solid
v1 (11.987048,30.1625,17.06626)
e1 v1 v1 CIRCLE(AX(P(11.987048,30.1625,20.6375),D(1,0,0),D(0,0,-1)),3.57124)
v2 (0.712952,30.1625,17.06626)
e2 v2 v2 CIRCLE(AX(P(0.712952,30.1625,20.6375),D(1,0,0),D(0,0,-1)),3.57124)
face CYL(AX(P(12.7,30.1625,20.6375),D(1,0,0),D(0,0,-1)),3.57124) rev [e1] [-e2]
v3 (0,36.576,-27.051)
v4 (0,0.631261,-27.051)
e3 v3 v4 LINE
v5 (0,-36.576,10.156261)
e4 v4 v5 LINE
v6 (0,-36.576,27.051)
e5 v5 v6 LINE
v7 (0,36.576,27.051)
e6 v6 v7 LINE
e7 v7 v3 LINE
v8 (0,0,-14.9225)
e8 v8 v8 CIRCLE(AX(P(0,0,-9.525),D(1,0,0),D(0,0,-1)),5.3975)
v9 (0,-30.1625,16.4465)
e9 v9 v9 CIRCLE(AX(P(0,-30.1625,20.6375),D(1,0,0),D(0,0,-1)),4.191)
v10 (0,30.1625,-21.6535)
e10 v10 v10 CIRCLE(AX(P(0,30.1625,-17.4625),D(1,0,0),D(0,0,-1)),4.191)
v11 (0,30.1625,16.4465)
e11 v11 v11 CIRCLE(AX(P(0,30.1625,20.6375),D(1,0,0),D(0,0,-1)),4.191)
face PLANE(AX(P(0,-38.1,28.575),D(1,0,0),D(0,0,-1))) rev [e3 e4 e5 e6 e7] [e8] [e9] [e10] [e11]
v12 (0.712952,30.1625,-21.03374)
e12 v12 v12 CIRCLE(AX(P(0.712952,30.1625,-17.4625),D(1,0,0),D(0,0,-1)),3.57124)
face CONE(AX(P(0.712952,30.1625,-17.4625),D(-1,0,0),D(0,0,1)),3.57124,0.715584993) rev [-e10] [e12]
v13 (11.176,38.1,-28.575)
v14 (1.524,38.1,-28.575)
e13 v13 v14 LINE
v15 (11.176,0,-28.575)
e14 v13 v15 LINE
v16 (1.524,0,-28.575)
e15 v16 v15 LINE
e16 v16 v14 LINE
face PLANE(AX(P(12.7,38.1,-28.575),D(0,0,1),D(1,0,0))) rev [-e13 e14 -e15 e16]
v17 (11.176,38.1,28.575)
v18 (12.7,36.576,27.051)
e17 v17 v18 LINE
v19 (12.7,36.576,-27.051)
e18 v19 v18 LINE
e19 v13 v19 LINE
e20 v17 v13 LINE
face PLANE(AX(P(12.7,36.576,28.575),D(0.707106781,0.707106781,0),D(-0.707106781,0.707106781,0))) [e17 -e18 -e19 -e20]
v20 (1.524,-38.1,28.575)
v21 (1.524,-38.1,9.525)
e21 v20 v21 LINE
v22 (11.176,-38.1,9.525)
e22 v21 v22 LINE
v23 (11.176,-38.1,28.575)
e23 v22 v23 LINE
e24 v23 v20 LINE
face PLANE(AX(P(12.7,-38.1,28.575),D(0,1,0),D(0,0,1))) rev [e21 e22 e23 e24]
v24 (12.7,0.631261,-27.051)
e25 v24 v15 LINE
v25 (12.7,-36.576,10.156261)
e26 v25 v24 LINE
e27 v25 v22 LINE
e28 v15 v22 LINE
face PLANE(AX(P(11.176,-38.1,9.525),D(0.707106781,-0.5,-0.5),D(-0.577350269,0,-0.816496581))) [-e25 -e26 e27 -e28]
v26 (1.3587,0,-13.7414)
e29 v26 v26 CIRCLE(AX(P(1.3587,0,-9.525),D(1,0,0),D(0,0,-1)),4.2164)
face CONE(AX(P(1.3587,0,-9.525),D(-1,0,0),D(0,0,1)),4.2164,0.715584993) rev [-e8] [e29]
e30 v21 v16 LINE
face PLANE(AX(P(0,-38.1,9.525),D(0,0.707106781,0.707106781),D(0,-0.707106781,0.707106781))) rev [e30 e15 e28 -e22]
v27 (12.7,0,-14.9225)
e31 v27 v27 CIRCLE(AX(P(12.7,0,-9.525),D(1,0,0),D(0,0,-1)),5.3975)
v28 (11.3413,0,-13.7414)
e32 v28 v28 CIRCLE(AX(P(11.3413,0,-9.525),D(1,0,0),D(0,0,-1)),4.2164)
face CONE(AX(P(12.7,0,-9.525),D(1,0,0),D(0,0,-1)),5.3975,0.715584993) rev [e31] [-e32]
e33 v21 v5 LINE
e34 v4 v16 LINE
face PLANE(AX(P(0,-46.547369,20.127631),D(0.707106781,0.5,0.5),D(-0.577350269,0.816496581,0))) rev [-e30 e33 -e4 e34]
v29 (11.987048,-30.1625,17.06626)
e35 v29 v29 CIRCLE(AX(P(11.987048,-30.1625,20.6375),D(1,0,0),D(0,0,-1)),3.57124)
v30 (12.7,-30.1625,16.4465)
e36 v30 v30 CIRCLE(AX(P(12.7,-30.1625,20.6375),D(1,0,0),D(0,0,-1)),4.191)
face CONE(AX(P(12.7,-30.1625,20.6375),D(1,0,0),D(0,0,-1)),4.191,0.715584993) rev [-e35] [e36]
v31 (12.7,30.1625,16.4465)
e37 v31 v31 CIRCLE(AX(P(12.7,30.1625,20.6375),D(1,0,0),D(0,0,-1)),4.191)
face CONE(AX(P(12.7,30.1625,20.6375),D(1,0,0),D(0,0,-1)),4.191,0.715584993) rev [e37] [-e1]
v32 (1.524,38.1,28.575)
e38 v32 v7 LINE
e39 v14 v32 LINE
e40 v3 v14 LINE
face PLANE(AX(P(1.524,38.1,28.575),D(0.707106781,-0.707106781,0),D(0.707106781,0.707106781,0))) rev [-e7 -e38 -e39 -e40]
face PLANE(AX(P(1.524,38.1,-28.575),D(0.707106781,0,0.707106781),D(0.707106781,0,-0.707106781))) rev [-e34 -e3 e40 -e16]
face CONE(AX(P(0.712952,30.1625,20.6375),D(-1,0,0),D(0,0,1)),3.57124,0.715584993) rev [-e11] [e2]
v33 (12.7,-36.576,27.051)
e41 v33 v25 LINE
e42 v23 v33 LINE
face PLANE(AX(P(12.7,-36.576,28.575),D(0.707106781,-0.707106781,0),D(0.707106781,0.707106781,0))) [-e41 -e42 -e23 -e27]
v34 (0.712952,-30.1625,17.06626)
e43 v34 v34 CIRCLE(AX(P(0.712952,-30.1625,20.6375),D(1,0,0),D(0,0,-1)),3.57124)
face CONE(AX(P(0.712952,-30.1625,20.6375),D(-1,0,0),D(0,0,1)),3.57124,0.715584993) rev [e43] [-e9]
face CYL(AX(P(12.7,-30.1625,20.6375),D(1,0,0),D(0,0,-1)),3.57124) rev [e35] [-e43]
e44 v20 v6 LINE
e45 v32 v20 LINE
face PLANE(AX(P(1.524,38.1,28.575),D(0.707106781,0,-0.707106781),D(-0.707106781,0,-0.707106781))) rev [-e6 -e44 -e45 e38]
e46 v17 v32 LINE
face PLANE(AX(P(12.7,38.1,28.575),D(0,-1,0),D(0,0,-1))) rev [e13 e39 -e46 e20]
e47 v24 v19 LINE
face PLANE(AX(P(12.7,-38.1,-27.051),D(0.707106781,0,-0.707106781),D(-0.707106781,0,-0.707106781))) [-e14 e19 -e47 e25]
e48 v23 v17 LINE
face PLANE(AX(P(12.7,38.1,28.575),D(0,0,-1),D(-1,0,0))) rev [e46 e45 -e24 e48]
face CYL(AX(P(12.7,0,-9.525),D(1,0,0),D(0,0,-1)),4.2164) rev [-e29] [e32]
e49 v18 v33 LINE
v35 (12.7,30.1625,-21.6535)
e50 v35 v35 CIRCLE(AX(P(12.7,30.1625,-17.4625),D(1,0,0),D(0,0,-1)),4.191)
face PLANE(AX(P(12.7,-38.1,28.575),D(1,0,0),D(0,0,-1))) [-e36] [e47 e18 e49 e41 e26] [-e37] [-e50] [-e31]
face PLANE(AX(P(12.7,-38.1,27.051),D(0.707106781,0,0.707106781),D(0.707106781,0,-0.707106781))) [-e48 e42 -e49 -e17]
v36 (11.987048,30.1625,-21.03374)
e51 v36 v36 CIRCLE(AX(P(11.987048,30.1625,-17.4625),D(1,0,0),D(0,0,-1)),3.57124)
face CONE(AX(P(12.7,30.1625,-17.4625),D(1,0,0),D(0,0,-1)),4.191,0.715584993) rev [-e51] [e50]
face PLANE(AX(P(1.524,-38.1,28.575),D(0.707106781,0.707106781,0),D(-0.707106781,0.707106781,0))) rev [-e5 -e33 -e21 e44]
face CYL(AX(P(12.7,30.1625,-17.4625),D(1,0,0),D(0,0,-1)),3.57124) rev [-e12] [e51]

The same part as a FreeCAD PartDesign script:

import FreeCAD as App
import Part
import Sketcher

V = App.Vector
Q = App.Units.Quantity


def edges_at(feature, points):
    """Names of the edges that pass closest to the given points."""
    edges = feature.Shape.Edges
    near = lambda p: min(range(len(edges)), key=lambda i: edges[i].distToShape(Part.Vertex(*p))[0])
    return sorted({f"Edge{near(p) + 1}" for p in points})


def add_polygon(sketch, points):
    """Adds a closed chain of lines whose ends are joined by coincident constraints."""
    first, n = sketch.GeometryCount, len(points)
    for a, b in zip(points, points[1:] + points[:1]):
        sketch.addGeometry(Part.LineSegment(App.Vector(*a, 0), App.Vector(*b, 0)), False)
    for i in range(n):
        sketch.addConstraint(Sketcher.Constraint("Coincident", first + i, 2, first + (i + 1) % n, 1))

doc = App.newDocument("Part")
body = doc.addObject("PartDesign::Body", "Body")

# Sketch on YZ plane
sketch1 = body.newObject("Sketcher::SketchObject", "Sketch")
sketch1.AttachmentSupport = (doc.getObject("YZ_Plane"), [""])
sketch1.MapMode = "FlatFace"
add_polygon(sketch1, [(38, 29), (-38, 29), (-38, -29), (38, -29)])  # lines 0-3
sketch1.addConstraint([
    Sketcher.Constraint("Horizontal", 0),
    Sketcher.Constraint("Vertical", 1),
    Sketcher.Constraint("Horizontal", 2),
    Sketcher.Constraint("Vertical", 3),
    Sketcher.Constraint("Symmetric", 0, 2, 2, 2, -1, 1),
    Sketcher.Constraint("DistanceX", 0, 2, 0, 1, Q("3 in")),
    Sketcher.Constraint("DistanceY", 1, 2, 1, 1, Q("2.25 in")),
])
pad1 = body.newObject("PartDesign::Pad", "Pad")
pad1.Profile = sketch1
pad1.Length = Q("0.5 in")

# Sketch on XZ plane
sketch2 = body.newObject("Sketcher::SketchObject", "Sketch001")
sketch2.AttachmentSupport = (doc.getObject("XZ_Plane"), [""])
sketch2.MapMode = "FlatFace"
sketch2.AttachmentOffset = App.Placement(V(0, 0, -1.1875 * 25.4), App.Rotation())
add_polygon(sketch2, [(0, 20.6), (12.7, 20.6), (12.7, 16.4), (12, 17.1), (0.7, 17.1), (0, 16.4)])  # lines 0-5
sketch2.addGeometry(Part.LineSegment(V(12.7, 20.6, 0), V(0, 20.6, 0)), True)  # axis
sketch2.addConstraint([
    Sketcher.Constraint("Horizontal", 0),
    Sketcher.Constraint("Vertical", 1),
    Sketcher.Constraint("Horizontal", 3),
    Sketcher.Constraint("Vertical", 5),
    Sketcher.Constraint("Horizontal", 6),
    Sketcher.Constraint("Coincident", 6, 1, 0, 2),
    Sketcher.Constraint("PointOnObject", 4, 2, -2),
    Sketcher.Constraint("PointOnObject", 6, 2, -2),
    Sketcher.Constraint("Horizontal", 1, 2, 4, 2),
    Sketcher.Constraint("Equal", 2, 4),
    Sketcher.Constraint("DistanceX", 0, 1, 0, 2, Q("0.5 in")),
    Sketcher.Constraint("Angle", 2, Q("139 deg")),
    Sketcher.Constraint("DistanceY", 1, 2, 1, 1, Q("0.165 in")),
    Sketcher.Constraint("DistanceY", -1, 1, 0, 2, Q("0.8125 in")),
    Sketcher.Constraint("DistanceY", -1, 1, 2, 2, Q("0.6719 in")),
])
groove = body.newObject("PartDesign::Groove", "Groove")
groove.Profile = sketch2
groove.ReferenceAxis = (sketch2, ["Axis0"])
groove.Angle = 360
doc.recompute()

linearpattern = body.newObject("PartDesign::LinearPattern", "LinearPattern")
linearpattern.Originals = [groove]
linearpattern.Direction = (doc.getObject("Y_Axis"), [""])
linearpattern.Mode = "offset"
linearpattern.Offset = Q("2.375 in")
linearpattern.Occurrences = 2
linearpattern.Reversed = True
body.Tip = linearpattern
doc.recompute()

linearpattern2 = body.newObject("PartDesign::LinearPattern", "LinearPattern001")
linearpattern2.Originals = [groove]
linearpattern2.Direction = (doc.getObject("Z_Axis"), [""])
linearpattern2.Mode = "offset"
linearpattern2.Offset = Q("1.5 in")
linearpattern2.Occurrences = 2
linearpattern2.Reversed = True
body.Tip = linearpattern2

# Sketch on XZ plane
sketch3 = body.newObject("Sketcher::SketchObject", "Sketch002")
sketch3.AttachmentSupport = (doc.getObject("XZ_Plane"), [""])
sketch3.MapMode = "FlatFace"
add_polygon(sketch3, [(0, -9.5), (12.7, -9.5), (12.7, -14.9), (11.3, -13.7), (1.4, -13.7), (0, -14.9)])  # lines 0-5
sketch3.addGeometry(Part.LineSegment(V(12.7, -9.5, 0), V(0, -9.5, 0)), True)  # axis
sketch3.addConstraint([
    Sketcher.Constraint("Horizontal", 0),
    Sketcher.Constraint("Vertical", 1),
    Sketcher.Constraint("Horizontal", 3),
    Sketcher.Constraint("Vertical", 5),
    Sketcher.Constraint("Horizontal", 6),
    Sketcher.Constraint("Coincident", 6, 1, 0, 2),
    Sketcher.Constraint("PointOnObject", 4, 2, -2),
    Sketcher.Constraint("PointOnObject", 6, 2, -2),
    Sketcher.Constraint("Horizontal", 1, 2, 4, 2),
    Sketcher.Constraint("Equal", 2, 4),
    Sketcher.Constraint("DistanceX", 0, 1, 0, 2, Q("0.5 in")),
    Sketcher.Constraint("Angle", 2, Q("139 deg")),
    Sketcher.Constraint("DistanceY", 1, 2, 1, 1, Q("0.2125 in")),
    Sketcher.Constraint("DistanceY", 0, 2, -1, 1, Q("0.375 in")),
    Sketcher.Constraint("DistanceY", 2, 2, -1, 1, Q("0.541 in")),
])
groove2 = body.newObject("PartDesign::Groove", "Groove001")
groove2.Profile = sketch3
groove2.ReferenceAxis = (sketch3, ["Axis0"])
groove2.Angle = 360

# Sketch on YZ plane
sketch4 = body.newObject("Sketcher::SketchObject", "Sketch003")
sketch4.AttachmentSupport = (doc.getObject("YZ_Plane"), [""])
sketch4.MapMode = "FlatFace"
sketch4.AttachmentOffset = App.Placement(V(0, 0, 0.5 * 25.4), App.Rotation())
add_polygon(sketch4, [(0, -29), (-38, 10), (-38, -29)])  # lines 0-2
sketch4.addConstraint([
    Sketcher.Constraint("Vertical", 1),
    Sketcher.Constraint("Horizontal", 2),
    Sketcher.Constraint("PointOnObject", 2, 2, -2),
    Sketcher.Constraint("Equal", 2, 1),
    Sketcher.Constraint("DistanceX", 2, 1, 2, 2, Q("1.5 in")),
    Sketcher.Constraint("DistanceY", -1, 1, 0, 2, Q("0.375 in")),
])
pocket1 = body.newObject("PartDesign::Pocket", "Pocket")
pocket1.Profile = sketch4
pocket1.Type = "ThroughAll"
doc.recompute()

chamfer = body.newObject("PartDesign::Chamfer", "Chamfer")
chamfer.Base = (pocket1, edges_at(pocket1, [
    (12.7, 38.1, 0),
    (12.7, 0, 28.575),
    (0, 38.1, 0),
    (0, 19.05, -28.575),
    (12.7, 19.05, -28.575),
    (0, -19.05, -9.525),
    (12.7, -19.05, -9.525),
    (0, -38.1, 19.05),
    (0, 0, 28.575),
    (12.7, -38.1, 19.05),
]))
chamfer.Size = Q("0.06 in")

doc.recompute()
